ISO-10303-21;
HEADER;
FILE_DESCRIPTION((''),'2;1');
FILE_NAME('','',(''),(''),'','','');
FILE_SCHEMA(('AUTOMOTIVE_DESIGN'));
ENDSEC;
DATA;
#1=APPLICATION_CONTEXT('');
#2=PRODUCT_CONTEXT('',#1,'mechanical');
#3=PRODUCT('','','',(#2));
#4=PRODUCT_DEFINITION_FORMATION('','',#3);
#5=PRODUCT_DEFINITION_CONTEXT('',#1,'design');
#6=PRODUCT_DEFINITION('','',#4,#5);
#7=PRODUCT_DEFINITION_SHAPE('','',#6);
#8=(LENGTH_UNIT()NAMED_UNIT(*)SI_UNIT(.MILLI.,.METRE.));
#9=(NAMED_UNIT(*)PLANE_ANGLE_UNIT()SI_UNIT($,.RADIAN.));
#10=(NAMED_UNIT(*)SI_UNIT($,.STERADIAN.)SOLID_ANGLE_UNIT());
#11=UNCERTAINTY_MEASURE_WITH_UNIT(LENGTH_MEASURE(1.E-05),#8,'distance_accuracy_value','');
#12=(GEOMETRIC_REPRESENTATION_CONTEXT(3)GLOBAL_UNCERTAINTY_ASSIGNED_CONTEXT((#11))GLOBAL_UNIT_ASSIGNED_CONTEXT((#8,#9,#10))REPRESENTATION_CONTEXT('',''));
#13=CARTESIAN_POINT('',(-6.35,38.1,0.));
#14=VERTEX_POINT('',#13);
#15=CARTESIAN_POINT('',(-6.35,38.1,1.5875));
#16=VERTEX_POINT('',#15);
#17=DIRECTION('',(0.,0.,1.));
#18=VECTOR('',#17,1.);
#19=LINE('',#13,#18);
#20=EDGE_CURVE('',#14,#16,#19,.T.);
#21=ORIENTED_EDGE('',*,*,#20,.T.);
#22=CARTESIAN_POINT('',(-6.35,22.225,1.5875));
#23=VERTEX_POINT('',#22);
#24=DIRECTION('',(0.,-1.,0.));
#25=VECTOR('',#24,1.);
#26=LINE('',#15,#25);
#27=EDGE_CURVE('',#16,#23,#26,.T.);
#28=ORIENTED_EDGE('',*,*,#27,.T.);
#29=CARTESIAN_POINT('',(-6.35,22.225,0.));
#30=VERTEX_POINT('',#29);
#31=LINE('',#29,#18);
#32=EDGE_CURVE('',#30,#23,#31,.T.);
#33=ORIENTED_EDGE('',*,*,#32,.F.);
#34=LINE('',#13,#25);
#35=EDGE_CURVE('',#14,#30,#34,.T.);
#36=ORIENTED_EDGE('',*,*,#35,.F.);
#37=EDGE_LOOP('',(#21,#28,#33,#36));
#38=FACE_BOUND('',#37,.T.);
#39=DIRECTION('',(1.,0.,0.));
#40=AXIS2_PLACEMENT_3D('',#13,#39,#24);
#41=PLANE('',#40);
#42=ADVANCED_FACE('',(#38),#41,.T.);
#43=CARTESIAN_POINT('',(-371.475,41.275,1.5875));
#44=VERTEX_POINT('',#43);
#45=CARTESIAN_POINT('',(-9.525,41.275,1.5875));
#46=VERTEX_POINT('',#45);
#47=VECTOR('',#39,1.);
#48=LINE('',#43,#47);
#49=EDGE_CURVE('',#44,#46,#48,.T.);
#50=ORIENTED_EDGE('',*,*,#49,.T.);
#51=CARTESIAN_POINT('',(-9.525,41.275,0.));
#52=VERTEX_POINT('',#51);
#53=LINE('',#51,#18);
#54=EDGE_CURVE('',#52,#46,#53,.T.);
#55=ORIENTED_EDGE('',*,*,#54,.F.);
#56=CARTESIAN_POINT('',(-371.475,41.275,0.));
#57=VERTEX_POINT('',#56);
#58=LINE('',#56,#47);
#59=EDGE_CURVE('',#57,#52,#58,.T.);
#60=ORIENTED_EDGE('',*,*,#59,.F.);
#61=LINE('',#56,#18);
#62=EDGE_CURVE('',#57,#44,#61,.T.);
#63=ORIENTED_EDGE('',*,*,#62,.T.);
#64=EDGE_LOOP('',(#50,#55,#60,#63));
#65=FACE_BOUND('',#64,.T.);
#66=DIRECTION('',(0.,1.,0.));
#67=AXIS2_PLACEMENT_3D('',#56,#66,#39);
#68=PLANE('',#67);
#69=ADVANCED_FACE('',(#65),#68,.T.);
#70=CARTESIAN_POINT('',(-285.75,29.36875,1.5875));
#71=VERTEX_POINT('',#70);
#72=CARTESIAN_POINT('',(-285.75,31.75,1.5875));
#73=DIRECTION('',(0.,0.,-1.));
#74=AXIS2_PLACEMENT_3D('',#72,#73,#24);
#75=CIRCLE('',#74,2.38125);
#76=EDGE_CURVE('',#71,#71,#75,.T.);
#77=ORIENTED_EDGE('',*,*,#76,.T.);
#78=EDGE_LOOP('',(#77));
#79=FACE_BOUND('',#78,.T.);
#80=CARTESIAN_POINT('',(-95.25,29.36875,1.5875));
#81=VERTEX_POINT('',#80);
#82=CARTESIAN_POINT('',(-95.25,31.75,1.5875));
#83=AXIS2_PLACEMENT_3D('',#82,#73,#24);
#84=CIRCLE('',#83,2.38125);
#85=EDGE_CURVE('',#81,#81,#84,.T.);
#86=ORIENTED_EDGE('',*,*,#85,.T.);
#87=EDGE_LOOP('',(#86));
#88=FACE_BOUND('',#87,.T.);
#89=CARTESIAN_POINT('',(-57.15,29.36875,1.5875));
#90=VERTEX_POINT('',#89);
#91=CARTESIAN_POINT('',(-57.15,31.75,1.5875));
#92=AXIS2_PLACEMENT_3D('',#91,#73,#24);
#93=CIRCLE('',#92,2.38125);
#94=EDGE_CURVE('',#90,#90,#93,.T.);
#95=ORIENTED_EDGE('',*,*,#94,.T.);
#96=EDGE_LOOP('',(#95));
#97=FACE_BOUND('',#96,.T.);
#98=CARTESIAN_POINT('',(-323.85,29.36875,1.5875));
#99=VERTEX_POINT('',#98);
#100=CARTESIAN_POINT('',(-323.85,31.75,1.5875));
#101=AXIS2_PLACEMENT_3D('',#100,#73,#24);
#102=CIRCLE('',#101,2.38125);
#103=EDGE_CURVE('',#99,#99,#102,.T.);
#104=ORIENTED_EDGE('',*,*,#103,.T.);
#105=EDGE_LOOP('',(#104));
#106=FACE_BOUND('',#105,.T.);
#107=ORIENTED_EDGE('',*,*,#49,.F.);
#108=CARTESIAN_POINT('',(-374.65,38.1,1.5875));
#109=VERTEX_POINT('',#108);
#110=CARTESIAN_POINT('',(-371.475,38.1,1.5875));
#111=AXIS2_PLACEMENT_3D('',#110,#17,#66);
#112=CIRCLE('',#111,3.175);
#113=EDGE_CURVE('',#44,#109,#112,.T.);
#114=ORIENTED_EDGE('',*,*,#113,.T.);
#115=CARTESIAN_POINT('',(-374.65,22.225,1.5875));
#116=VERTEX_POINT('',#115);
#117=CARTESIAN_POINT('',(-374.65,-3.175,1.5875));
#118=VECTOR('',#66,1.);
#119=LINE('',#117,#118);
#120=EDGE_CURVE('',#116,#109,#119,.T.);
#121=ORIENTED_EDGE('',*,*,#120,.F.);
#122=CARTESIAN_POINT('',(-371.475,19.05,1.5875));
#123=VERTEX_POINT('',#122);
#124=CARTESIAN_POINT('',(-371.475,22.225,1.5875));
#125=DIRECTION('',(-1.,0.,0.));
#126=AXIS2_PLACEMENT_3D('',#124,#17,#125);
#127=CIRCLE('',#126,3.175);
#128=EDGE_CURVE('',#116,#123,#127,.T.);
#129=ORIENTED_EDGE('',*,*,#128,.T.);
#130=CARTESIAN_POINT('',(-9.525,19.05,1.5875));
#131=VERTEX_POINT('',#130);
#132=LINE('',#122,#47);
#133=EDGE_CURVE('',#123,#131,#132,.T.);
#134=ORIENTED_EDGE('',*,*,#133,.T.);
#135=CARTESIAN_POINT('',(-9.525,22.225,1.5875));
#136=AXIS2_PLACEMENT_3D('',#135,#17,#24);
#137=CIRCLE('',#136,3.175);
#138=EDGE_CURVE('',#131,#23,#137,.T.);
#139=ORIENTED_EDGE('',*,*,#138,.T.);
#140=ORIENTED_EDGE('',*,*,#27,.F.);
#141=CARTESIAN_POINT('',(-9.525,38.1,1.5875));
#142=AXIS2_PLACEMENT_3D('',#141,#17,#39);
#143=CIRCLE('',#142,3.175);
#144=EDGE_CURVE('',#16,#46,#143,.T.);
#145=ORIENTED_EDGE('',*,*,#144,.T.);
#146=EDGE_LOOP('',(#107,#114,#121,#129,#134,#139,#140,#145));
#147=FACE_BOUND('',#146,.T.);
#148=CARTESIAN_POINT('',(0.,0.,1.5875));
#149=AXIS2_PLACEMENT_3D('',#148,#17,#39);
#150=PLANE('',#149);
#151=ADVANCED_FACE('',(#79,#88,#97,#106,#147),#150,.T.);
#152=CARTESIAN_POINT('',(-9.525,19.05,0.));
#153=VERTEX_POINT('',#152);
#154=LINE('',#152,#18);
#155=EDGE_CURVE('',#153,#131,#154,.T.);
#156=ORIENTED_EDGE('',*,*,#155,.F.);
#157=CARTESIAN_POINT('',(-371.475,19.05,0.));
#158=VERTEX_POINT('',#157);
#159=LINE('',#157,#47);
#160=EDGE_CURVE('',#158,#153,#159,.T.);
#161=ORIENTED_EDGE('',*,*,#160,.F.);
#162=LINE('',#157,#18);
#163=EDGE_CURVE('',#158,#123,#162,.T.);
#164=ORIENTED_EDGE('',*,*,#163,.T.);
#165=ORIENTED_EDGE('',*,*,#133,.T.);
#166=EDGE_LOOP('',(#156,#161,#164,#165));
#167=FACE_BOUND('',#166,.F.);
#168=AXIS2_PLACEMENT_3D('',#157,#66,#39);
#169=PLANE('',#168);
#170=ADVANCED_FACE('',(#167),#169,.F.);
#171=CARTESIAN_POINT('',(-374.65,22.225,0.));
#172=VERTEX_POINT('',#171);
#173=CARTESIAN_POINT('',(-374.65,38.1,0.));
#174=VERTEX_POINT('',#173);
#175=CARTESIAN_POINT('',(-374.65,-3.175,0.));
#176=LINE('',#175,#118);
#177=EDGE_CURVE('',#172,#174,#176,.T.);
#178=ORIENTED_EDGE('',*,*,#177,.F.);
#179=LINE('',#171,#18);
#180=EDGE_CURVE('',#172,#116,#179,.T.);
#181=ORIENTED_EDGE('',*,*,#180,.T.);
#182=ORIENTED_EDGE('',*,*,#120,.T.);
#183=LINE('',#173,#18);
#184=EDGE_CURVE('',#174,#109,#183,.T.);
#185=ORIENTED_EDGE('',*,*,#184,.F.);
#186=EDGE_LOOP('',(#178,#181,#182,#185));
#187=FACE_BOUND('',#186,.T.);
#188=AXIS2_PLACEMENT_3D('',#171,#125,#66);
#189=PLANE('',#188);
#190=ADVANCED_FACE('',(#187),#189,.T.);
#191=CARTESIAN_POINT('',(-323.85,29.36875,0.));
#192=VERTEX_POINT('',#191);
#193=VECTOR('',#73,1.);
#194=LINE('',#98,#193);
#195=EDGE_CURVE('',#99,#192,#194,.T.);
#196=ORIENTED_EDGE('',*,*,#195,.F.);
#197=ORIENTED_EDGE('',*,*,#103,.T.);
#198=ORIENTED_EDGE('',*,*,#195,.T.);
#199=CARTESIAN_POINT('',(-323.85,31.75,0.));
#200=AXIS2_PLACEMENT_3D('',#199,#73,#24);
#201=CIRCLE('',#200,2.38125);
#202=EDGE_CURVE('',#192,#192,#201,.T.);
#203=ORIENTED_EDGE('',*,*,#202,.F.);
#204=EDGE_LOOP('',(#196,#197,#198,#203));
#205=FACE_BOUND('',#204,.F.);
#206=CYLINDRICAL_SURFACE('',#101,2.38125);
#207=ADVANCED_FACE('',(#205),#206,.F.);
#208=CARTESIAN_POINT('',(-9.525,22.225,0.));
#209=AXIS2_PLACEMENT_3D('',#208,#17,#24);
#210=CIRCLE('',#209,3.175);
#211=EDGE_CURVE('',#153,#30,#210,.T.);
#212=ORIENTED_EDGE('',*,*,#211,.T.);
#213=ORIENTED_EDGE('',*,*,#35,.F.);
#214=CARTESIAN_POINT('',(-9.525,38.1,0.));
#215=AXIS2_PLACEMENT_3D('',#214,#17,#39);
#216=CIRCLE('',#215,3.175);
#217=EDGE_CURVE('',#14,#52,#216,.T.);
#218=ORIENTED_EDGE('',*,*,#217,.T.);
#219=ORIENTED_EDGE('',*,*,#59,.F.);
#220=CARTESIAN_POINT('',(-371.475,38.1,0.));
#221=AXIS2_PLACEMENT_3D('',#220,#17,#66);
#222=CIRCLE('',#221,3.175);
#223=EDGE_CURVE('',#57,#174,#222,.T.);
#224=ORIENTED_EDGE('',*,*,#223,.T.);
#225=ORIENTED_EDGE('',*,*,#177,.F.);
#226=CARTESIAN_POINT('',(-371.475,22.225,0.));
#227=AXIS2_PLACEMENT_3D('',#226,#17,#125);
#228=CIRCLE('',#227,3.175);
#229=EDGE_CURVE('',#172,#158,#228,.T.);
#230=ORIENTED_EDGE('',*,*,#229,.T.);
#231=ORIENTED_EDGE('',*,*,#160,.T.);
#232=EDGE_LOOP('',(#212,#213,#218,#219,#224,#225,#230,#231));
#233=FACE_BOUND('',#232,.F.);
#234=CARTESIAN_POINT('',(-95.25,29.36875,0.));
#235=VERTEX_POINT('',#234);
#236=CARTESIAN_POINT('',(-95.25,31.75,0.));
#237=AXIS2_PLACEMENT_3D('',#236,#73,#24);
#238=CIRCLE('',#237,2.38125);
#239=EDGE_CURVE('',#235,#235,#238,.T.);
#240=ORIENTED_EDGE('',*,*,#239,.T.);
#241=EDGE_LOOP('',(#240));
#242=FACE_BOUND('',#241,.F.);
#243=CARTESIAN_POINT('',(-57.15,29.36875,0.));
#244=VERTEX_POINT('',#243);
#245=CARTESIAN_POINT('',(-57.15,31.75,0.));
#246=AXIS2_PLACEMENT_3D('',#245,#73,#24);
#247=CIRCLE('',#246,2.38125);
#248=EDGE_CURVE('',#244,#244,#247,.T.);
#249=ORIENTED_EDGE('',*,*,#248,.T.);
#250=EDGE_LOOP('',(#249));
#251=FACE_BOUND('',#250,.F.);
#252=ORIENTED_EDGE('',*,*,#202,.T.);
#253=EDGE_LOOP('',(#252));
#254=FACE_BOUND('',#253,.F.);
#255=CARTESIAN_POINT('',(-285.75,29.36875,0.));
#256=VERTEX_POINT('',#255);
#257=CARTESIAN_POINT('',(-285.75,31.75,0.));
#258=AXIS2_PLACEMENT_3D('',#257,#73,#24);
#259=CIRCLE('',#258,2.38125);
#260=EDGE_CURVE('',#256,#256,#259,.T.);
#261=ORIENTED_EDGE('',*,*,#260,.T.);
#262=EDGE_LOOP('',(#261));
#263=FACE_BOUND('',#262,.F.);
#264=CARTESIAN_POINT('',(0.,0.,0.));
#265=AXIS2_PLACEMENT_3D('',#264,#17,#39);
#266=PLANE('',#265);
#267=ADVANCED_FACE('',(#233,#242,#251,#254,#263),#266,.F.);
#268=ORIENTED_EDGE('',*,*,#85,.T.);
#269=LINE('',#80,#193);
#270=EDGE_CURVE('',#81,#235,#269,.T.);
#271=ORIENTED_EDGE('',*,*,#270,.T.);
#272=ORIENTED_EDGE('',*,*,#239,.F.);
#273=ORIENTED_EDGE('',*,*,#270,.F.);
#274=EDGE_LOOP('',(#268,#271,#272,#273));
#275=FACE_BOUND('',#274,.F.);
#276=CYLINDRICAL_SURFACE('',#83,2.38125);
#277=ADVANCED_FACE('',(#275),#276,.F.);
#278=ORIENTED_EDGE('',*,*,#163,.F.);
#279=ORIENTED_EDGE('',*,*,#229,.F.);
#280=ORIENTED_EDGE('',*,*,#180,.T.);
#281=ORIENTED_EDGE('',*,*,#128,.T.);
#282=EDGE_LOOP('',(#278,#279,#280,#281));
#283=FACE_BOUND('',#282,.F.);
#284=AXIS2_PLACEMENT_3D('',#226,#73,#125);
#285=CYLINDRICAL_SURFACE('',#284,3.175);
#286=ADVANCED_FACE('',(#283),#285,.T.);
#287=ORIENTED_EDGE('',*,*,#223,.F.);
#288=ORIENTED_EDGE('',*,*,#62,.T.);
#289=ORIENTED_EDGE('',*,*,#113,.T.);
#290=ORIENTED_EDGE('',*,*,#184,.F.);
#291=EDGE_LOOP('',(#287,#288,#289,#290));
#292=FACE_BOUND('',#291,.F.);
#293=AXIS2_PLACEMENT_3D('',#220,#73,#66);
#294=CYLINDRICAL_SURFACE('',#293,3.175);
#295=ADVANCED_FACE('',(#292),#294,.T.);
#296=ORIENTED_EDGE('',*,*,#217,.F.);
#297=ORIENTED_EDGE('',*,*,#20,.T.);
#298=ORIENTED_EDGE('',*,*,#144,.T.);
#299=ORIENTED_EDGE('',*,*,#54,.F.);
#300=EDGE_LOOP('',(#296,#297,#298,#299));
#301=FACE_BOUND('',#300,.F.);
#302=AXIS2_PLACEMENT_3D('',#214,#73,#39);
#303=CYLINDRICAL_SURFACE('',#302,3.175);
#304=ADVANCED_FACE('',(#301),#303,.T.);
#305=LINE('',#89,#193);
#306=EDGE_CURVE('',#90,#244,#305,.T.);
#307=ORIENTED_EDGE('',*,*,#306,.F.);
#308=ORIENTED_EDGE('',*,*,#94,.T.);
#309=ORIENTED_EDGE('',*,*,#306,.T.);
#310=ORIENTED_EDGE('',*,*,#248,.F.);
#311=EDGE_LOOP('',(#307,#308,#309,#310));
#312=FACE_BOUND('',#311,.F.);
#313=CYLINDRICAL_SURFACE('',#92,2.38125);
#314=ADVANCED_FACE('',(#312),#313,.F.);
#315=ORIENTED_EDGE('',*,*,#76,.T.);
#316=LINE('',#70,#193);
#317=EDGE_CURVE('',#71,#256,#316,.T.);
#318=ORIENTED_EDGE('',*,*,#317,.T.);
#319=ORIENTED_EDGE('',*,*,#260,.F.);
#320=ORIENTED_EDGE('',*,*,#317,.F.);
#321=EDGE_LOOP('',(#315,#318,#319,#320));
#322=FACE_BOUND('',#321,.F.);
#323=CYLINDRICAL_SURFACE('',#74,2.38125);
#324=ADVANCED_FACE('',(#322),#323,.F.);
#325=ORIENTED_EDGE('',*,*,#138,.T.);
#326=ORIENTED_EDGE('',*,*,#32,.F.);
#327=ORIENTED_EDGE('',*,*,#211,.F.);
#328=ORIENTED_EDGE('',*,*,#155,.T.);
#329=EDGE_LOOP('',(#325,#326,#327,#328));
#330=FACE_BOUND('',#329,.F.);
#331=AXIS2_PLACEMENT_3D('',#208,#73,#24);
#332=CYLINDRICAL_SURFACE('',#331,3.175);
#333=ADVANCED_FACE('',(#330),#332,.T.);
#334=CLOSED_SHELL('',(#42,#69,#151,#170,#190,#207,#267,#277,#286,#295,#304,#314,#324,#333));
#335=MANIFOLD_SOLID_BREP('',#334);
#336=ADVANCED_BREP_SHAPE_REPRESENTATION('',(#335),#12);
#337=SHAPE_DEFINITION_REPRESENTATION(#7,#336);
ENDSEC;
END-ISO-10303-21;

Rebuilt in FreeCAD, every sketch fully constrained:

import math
import FreeCAD as App
import Part
import Sketcher
from FreeCAD import Vector
Q = App.Units.Quantity

doc = App.newDocument("Part")
body = doc.addObject("PartDesign::Body", "Body")

sketch1 = body.newObject("Sketcher::SketchObject", "Sketch")
sketch1.AttachmentSupport = (doc.getObject("XY_Plane"), [""])
sketch1.MapMode = "FlatFace"
sketch1.addGeometry([
    Part.LineSegment(Vector(-374.6, 38.1, 0), Vector(-374.6, 22.2, 0)),
    Part.ArcOfCircle(Part.Circle(Vector(-371.5, 22.2, 0), Vector(0, 0, 1), 3.2), math.radians(180), math.radians(270)),
    Part.LineSegment(Vector(-371.5, 19.1, 0), Vector(-9.5, 19.1, 0)),
    Part.ArcOfCircle(Part.Circle(Vector(-9.5, 22.2, 0), Vector(0, 0, 1), 3.2), math.radians(-90), math.radians(0)),
    Part.LineSegment(Vector(-6.3, 22.2, 0), Vector(-6.3, 38.1, 0)),
    Part.ArcOfCircle(Part.Circle(Vector(-9.5, 38.1, 0), Vector(0, 0, 1), 3.2), math.radians(0), math.radians(90)),
    Part.LineSegment(Vector(-9.5, 41.3, 0), Vector(-371.5, 41.3, 0)),
    Part.ArcOfCircle(Part.Circle(Vector(-371.5, 38.1, 0), Vector(0, 0, 1), 3.2), math.radians(90), math.radians(180)),
], False)
sketch1.addConstraint([
    Sketcher.Constraint("Tangent", 0, 2, 1, 1),
    Sketcher.Constraint("Tangent", 1, 2, 2, 1),
    Sketcher.Constraint("Tangent", 2, 2, 3, 1),
    Sketcher.Constraint("Tangent", 3, 2, 4, 1),
    Sketcher.Constraint("Tangent", 4, 2, 5, 1),
    Sketcher.Constraint("Tangent", 5, 2, 6, 1),
    Sketcher.Constraint("Tangent", 6, 2, 7, 1),
    Sketcher.Constraint("Tangent", 7, 2, 0, 1),
    Sketcher.Constraint("Vertical", 0),
    Sketcher.Constraint("Horizontal", 2),
    Sketcher.Constraint("Vertical", 4),
    Sketcher.Constraint("Horizontal", 6),
    Sketcher.Constraint("Equal", 1, 3),
    Sketcher.Constraint("Equal", 3, 5),
    Sketcher.Constraint("Equal", 5, 7),
    Sketcher.Constraint("Radius", 1, Q("0.125 in")),
    Sketcher.Constraint("DistanceX", 2, 1, 2, 2, Q("14.25 in")),
    Sketcher.Constraint("DistanceY", -1, 1, 1, 3, Q("0.875 in")),
    Sketcher.Constraint("DistanceX", 3, 3, -1, 1, Q("0.375 in")),
    Sketcher.Constraint("DistanceY", 2, 2, 5, 2, Q("0.875 in")),
])
pad1 = body.newObject("PartDesign::Pad", "Pad")
pad1.Profile = sketch1
pad1.Length = Q("0.0625 in")

sketch2 = body.newObject("Sketcher::SketchObject", "Sketch001")
sketch2.AttachmentSupport = (doc.getObject("XY_Plane"), [""])
sketch2.MapMode = "FlatFace"
sketch2.AttachmentOffset = App.Placement(Vector(0, 0, 0.0625 * 25.4), App.Rotation())
sketch2.addGeometry([
    Part.Circle(Vector(-323.9, 31.8, 0), Vector(0, 0, 1), 2.4),
    Part.Circle(Vector(-57.1, 31.8, 0), Vector(0, 0, 1), 2.4),
    Part.Circle(Vector(-285.8, 31.8, 0), Vector(0, 0, 1), 2.4),
    Part.Circle(Vector(-95.2, 31.8, 0), Vector(0, 0, 1), 2.4),
], False)
sketch2.addConstraint([
    Sketcher.Constraint("Equal", 0, 1),
    Sketcher.Constraint("Equal", 1, 2),
    Sketcher.Constraint("Equal", 2, 3),
    Sketcher.Constraint("Horizontal", 0, 3, 1, 3),
    Sketcher.Constraint("Horizontal", 1, 3, 2, 3),
    Sketcher.Constraint("Horizontal", 2, 3, 3, 3),
    Sketcher.Constraint("Diameter", 0, Q("0.1875 in")),
    Sketcher.Constraint("DistanceX", 2, 3, 1, 3, Q("9 in")),
    Sketcher.Constraint("DistanceX", 0, 3, 3, 3, Q("9 in")),
    Sketcher.Constraint("DistanceX", 0, 3, 1, 3, Q("10.5 in")),
    Sketcher.Constraint("DistanceX", 0, 3, -1, 1, Q("12.75 in")),
    Sketcher.Constraint("DistanceY", -1, 1, 0, 3, Q("1.25 in")),
])
doc.recompute()
hole = body.newObject("PartDesign::Hole", "Hole")
hole.Profile = sketch2
hole.ThreadType = "None"
hole.Diameter = Q("0.1875 in")
hole.DepthType = "ThroughAll"

doc.recompute()
